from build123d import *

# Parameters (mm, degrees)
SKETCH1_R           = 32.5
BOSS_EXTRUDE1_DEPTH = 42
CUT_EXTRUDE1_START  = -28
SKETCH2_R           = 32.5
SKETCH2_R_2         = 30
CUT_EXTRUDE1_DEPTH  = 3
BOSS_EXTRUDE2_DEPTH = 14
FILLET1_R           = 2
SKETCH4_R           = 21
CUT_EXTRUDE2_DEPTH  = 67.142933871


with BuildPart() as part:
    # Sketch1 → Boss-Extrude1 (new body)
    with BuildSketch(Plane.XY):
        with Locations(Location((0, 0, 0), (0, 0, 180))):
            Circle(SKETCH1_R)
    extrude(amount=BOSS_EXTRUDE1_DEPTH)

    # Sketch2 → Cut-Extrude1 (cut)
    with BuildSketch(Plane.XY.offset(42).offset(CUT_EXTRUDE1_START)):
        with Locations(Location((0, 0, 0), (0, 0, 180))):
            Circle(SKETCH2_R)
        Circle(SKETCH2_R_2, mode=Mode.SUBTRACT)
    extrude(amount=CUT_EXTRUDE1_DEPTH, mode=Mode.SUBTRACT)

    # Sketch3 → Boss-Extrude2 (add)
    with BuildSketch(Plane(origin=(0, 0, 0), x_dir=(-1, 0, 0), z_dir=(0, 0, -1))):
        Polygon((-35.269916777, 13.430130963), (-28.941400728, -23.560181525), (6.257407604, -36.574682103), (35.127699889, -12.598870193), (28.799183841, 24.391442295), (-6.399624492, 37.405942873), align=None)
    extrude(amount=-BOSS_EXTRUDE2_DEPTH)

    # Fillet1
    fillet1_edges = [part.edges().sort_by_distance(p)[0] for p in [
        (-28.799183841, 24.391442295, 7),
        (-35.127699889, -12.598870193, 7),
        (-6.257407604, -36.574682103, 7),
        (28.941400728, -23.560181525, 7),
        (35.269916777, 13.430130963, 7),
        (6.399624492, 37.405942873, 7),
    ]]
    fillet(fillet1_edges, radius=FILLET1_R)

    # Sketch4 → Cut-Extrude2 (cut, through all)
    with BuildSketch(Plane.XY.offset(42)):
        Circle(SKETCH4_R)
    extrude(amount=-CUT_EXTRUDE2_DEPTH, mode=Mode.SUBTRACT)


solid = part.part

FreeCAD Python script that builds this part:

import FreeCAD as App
import Part
import Sketcher


def edges_at(feature, points):
    """Names of the edges that pass closest to the given points."""
    edges = feature.Shape.Edges
    near = lambda p: min(range(len(edges)), key=lambda i: edges[i].distToShape(Part.Vertex(*p))[0])
    return sorted({f"Edge{near(p) + 1}" for p in points})


def add_polygon(sketch, points):
    """Adds a closed chain of lines whose ends are joined by coincident constraints."""
    first, n = sketch.GeometryCount, len(points)
    for a, b in zip(points, points[1:] + points[:1]):
        sketch.addGeometry(Part.LineSegment(App.Vector(*a, 0), App.Vector(*b, 0)), False)
    for i in range(n):
        sketch.addConstraint(Sketcher.Constraint("Coincident", first + i, 2, first + (i + 1) % n, 1))

doc = App.newDocument("Part")
body = doc.addObject("PartDesign::Body", "Body")

sketch1 = body.newObject("Sketcher::SketchObject", "Sketch")
sketch1.AttachmentSupport = (doc.getObject("XY_Plane"), [""])
sketch1.MapMode = "FlatFace"
sketch1.addGeometry(Part.Circle(App.Vector(0, 0, 0), App.Vector(0, 0, 1), 32), False)
sketch1.addConstraint([
    Sketcher.Constraint("Coincident", 0, 3, -1, 1),
    Sketcher.Constraint("Diameter", 0, 65.0),
])
pad1 = body.newObject("PartDesign::Pad", "Pad")
pad1.Profile = sketch1
pad1.Length = 42

sketch2 = body.newObject("Sketcher::SketchObject", "Sketch001")
sketch2.AttachmentSupport = (doc.getObject("XY_Plane"), [""])
sketch2.MapMode = "FlatFace"
sketch2.AttachmentOffset = App.Placement(App.Vector(0, 0, 14), App.Rotation())
sketch2.addGeometry([
    Part.Circle(App.Vector(0, 0, 0), App.Vector(0, 0, 1), 32),
    Part.Circle(App.Vector(0, 0, 0), App.Vector(0, 0, 1), 30),
], False)
sketch2.addConstraint([
    Sketcher.Constraint("Coincident", 0, 3, -1, 1),
    Sketcher.Constraint("Coincident", 1, 3, -1, 1),
    Sketcher.Constraint("Diameter", 0, 65.0),
    Sketcher.Constraint("Diameter", 1, 60.0),
])
pocket1 = body.newObject("PartDesign::Pocket", "Pocket")
pocket1.Profile = sketch2
pocket1.Length = 3
pocket1.Reversed = True

sketch3 = body.newObject("Sketcher::SketchObject", "Sketch002")
sketch3.AttachmentSupport = (doc.getObject("XY_Plane"), [""])
sketch3.MapMode = "FlatFace"
add_polygon(sketch3, [(35, 13), (29, -24), (-6, -37), (-35, -13), (-29, 24), (6, 37)])
sketch3.addConstraint([
    Sketcher.Constraint("Parallel", 0, 3),
    Sketcher.Constraint("Parallel", 1, 4),
    Sketcher.Constraint("Parallel", 2, 5),
    Sketcher.Constraint("Equal", 0, 1),
    Sketcher.Constraint("Equal", 1, 2),
    Sketcher.Constraint("Equal", 2, 3),
    Sketcher.Constraint("DistanceY", 2, 2, 5, 2, 26.029001),
    Sketcher.Constraint("DistanceX", -1, 1, 0, 2, 28.941401),
    Sketcher.Constraint("DistanceX", 2, 2, -1, 1, 35.1277),
    Sketcher.Constraint("DistanceY", 1, 2, 0, 2, 13.014501),
    Sketcher.Constraint("DistanceY", 0, 2, -1, 1, 23.560182),
    Sketcher.Constraint("DistanceY", 2, 2, -1, 1, 12.59887),
])
pad2 = body.newObject("PartDesign::Pad", "Pad001")
pad2.Profile = sketch3
pad2.Length = 14
doc.recompute()

fillet = body.newObject("PartDesign::Fillet", "Fillet")
fillet.Base = (pad2, edges_at(pad2, [
    (-28.799, 24.391, 7),
    (-35.128, -12.599, 7),
    (-6.257, -36.575, 7),
    (28.941, -23.56, 7),
    (35.27, 13.43, 7),
    (6.4, 37.406, 7),
]))
fillet.Radius = 2

sketch4 = body.newObject("Sketcher::SketchObject", "Sketch003")
sketch4.AttachmentSupport = (doc.getObject("XY_Plane"), [""])
sketch4.MapMode = "FlatFace"
sketch4.AttachmentOffset = App.Placement(App.Vector(0, 0, 42), App.Rotation())
sketch4.addGeometry(Part.Circle(App.Vector(0, 0, 0), App.Vector(0, 0, 1), 21), False)
sketch4.addConstraint([
    Sketcher.Constraint("Coincident", 0, 3, -1, 1),
    Sketcher.Constraint("Diameter", 0, 42.0),
])
pocket2 = body.newObject("PartDesign::Pocket", "Pocket001")
pocket2.Profile = sketch4
pocket2.Type = "ThroughAll"

doc.recompute()
